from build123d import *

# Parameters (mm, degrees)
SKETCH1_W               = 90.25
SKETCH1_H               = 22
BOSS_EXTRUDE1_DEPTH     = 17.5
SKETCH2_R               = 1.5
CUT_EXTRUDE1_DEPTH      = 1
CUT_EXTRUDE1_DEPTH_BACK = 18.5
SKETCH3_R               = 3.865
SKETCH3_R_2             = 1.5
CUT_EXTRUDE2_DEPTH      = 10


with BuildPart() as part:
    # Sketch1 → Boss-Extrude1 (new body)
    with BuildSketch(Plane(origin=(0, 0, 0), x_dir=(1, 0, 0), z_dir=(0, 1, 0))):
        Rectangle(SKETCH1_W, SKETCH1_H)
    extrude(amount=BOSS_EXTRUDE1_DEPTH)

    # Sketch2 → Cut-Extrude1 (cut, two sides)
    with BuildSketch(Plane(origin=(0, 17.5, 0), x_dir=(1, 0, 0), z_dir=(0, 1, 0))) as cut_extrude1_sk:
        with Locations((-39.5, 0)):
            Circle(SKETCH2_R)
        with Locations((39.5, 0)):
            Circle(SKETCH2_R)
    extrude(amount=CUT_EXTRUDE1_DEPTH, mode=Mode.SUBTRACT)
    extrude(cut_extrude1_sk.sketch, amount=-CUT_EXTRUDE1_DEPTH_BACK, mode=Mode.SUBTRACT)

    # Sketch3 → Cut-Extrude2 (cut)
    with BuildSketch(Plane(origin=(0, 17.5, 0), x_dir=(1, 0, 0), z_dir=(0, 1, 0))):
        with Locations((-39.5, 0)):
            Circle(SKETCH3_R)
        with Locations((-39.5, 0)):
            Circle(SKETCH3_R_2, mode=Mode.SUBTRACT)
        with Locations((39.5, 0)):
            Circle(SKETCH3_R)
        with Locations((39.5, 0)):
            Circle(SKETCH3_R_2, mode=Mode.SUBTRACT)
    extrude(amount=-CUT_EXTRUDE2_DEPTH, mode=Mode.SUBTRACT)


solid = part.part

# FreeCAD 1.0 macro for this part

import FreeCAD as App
import Part
import Sketcher
Q = App.Units.Quantity


def add_polygon(sketch, points):
    """Adds a closed chain of lines whose ends are joined by coincident constraints."""
    first, n = sketch.GeometryCount, len(points)
    for a, b in zip(points, points[1:] + points[:1]):
        sketch.addGeometry(Part.LineSegment(App.Vector(*a, 0), App.Vector(*b, 0)), False)
    for i in range(n):
        sketch.addConstraint(Sketcher.Constraint("Coincident", first + i, 2, first + (i + 1) % n, 1))

doc = App.newDocument("Part")
params = doc.addObject("Spreadsheet::Sheet", "Params")
for row, (alias, value) in enumerate([
    ("sketch1_height", "22 mm"),
    ("sketch1_width", "90.25 mm"),
    ("pad1_length", "17.5 mm"),
    ("sketch2_diameter", "3 mm"),
    ("sketch3_diameter", "3 mm"),
    ("sketch3_diameter2", "7.73 mm"),
    ("pocket2_length", "10 mm"),
], start=1):
    params.set(f"A{row}", alias)
    params.set(f"B{row}", "=" + value)
    params.setAlias(f"B{row}", alias)

body = doc.addObject("PartDesign::Body", "Body")

sketch1 = doc.addObject("Sketcher::SketchObject", "Sketch")
body.addObject(sketch1)
sketch1.AttachmentSupport = (doc.XZ_Plane, [""])
sketch1.MapMode = "FlatFace"
add_polygon(sketch1, [(-45.125, -11), (-45.125, 11), (45.125, 11), (45.125, -11)])
sketch1.addConstraint([
    Sketcher.Constraint("Vertical", 0),
    Sketcher.Constraint("Horizontal", 1),
    Sketcher.Constraint("Vertical", 2),
    Sketcher.Constraint("Horizontal", 3),
    Sketcher.Constraint("Symmetric", 0, 2, 2, 2, -1, 1),
    Sketcher.Constraint("DistanceY", 0, 1, 0, 2, Q("22 mm")),
    Sketcher.Constraint("DistanceX", 1, 1, 1, 2, Q("90.25 mm")),
])
sketch1.setExpression("Constraints[9]", "Params.sketch1_height")
sketch1.setExpression("Constraints[10]", "Params.sketch1_width")
pad1 = doc.addObject("PartDesign::Pad", "Pad")
body.addObject(pad1)
pad1.Profile = sketch1
pad1.setExpression("Length", "Params.pad1_length")
pad1.Reversed = True

sketch2 = doc.addObject("Sketcher::SketchObject", "Sketch001")
body.addObject(sketch2)
sketch2.AttachmentSupport = (doc.XZ_Plane, [""])
sketch2.MapMode = "FlatFace"
sketch2.AttachmentOffset = App.Placement(App.Vector(0, 0, -17.5), App.Rotation())
sketch2.addGeometry([
    Part.Circle(App.Vector(-39.5, 0, 0), App.Vector(0, 0, 1), 1.5),
    Part.Circle(App.Vector(39.5, 0, 0), App.Vector(0, 0, 1), 1.5),
], False)
sketch2.addConstraint([
    Sketcher.Constraint("Equal", 0, 1),
    Sketcher.Constraint("Symmetric", 0, 3, 1, 3, -1, 1),
    Sketcher.Constraint("PointOnObject", 0, 3, -1),
    Sketcher.Constraint("Diameter", 0, Q("3 mm")),
    Sketcher.Constraint("DistanceX", 0, 3, 1, 3, Q("79 mm")),
])
sketch2.setExpression("Constraints[3]", "Params.sketch2_diameter")
pocket1 = doc.addObject("PartDesign::Pocket", "Pocket")
body.addObject(pocket1)
pocket1.Profile = sketch2
pocket1.Type = "ThroughAll"
pocket1.Midplane = True

sketch3 = doc.addObject("Sketcher::SketchObject", "Sketch002")
body.addObject(sketch3)
sketch3.AttachmentSupport = (doc.XZ_Plane, [""])
sketch3.MapMode = "FlatFace"
sketch3.AttachmentOffset = App.Placement(App.Vector(0, 0, -17.5), App.Rotation())
sketch3.addGeometry([
    Part.Circle(App.Vector(-39.5, 0, 0), App.Vector(0, 0, 1), 3.865),
    Part.Circle(App.Vector(-39.5, 0, 0), App.Vector(0, 0, 1), 1.5),
    Part.Circle(App.Vector(39.5, 0, 0), App.Vector(0, 0, 1), 3.865),
    Part.Circle(App.Vector(39.5, 0, 0), App.Vector(0, 0, 1), 1.5),
], False)
sketch3.addConstraint([
    Sketcher.Constraint("Coincident", 1, 3, 0, 3),
    Sketcher.Constraint("Coincident", 3, 3, 2, 3),
    Sketcher.Constraint("Equal", 0, 2),
    Sketcher.Constraint("Equal", 1, 3),
    Sketcher.Constraint("Symmetric", 0, 3, 2, 3, -1, 1),
    Sketcher.Constraint("PointOnObject", 0, 3, -1),
    Sketcher.Constraint("Diameter", 1, Q("3 mm")),
    Sketcher.Constraint("Diameter", 0, Q("7.73 mm")),
    Sketcher.Constraint("DistanceX", 0, 3, 2, 3, Q("79 mm")),
])
sketch3.setExpression("Constraints[6]", "Params.sketch3_diameter")
sketch3.setExpression("Constraints[7]", "Params.sketch3_diameter2")
pocket2 = doc.addObject("PartDesign::Pocket", "Pocket001")
body.addObject(pocket2)
pocket2.Profile = sketch3
pocket2.setExpression("Length", "Params.pocket2_length")
pocket2.Reversed = True

doc.recompute()
